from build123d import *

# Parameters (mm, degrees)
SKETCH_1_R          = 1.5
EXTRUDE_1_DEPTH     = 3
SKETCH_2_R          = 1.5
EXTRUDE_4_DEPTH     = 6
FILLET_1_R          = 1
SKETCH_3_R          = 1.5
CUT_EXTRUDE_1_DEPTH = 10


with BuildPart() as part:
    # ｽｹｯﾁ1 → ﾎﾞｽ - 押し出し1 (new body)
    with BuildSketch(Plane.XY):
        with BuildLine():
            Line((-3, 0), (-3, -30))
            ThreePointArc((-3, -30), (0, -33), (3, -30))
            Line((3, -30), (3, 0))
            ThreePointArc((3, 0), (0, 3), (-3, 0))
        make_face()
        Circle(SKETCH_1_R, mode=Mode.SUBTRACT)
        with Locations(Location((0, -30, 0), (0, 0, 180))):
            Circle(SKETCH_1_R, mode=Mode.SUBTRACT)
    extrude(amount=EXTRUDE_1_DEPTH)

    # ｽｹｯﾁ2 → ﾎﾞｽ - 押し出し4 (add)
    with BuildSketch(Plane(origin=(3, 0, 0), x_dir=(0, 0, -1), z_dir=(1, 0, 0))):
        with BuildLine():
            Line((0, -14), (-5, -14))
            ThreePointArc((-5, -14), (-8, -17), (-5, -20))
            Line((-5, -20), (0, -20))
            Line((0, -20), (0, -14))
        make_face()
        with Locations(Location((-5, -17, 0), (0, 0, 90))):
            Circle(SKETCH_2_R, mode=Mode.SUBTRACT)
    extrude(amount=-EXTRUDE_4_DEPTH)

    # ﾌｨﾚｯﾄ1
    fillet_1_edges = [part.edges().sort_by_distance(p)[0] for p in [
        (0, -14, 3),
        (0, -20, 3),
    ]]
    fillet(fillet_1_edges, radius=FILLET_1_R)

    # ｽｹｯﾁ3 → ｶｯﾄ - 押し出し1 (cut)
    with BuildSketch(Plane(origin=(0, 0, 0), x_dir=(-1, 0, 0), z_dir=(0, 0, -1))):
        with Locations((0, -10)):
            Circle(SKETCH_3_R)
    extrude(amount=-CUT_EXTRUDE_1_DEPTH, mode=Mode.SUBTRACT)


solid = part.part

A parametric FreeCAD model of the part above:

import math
import FreeCAD as App
import Part
import Sketcher
from FreeCAD import Vector
Q = App.Units.Quantity


def edges_at(feature, points):
    """Names of the edges that pass closest to the given points."""
    edges = feature.Shape.Edges
    near = lambda p: min(range(len(edges)), key=lambda i: edges[i].distToShape(Part.Vertex(*p))[0])
    return sorted({f"Edge{near(p) + 1}" for p in points})

doc = App.newDocument("Part")
body = doc.addObject("PartDesign::Body", "Body")

sketch1 = body.newObject("Sketcher::SketchObject", "Sketch")
sketch1.AttachmentSupport = (doc.getObject("XY_Plane"), [""])
sketch1.MapMode = "FlatFace"
sketch1.addGeometry([
    Part.LineSegment(Vector(-3, 0, 0), Vector(-3, -30, 0)),
    Part.ArcOfCircle(Part.Circle(Vector(0, -30, 0), Vector(0, 0, 1), 3), math.radians(180), math.radians(360)),
    Part.LineSegment(Vector(3, -30, 0), Vector(3, 0, 0)),
    Part.ArcOfCircle(Part.Circle(Vector(0, 0, 0), Vector(0, 0, 1), 3), math.radians(0), math.radians(180)),
    Part.Circle(Vector(0, -30, 0), Vector(0, 0, 1), 1.5),
    Part.Circle(Vector(0, 0, 0), Vector(0, 0, 1), 1.5),
], False)
sketch1.addConstraint([
    Sketcher.Constraint("Tangent", 0, 2, 1, 1),
    Sketcher.Constraint("Tangent", 1, 2, 2, 1),
    Sketcher.Constraint("Tangent", 2, 2, 3, 1),
    Sketcher.Constraint("Tangent", 3, 2, 0, 1),
    Sketcher.Constraint("Vertical", 0),
    Sketcher.Constraint("Vertical", 2),
    Sketcher.Constraint("Coincident", 3, 3, -1, 1),
    Sketcher.Constraint("Coincident", 5, 3, -1, 1),
    Sketcher.Constraint("Coincident", 4, 3, 1, 3),
    Sketcher.Constraint("Equal", 4, 5),
    Sketcher.Constraint("Diameter", 4, Q("3 mm")),
    Sketcher.Constraint("Radius", 1, Q("3 mm")),
    Sketcher.Constraint("DistanceY", 0, 2, 0, 1, Q("30 mm")),
])
pad1 = body.newObject("PartDesign::Pad", "Pad")
pad1.Profile = sketch1
pad1.Length = 3

sketch2 = body.newObject("Sketcher::SketchObject", "Sketch001")
sketch2.AttachmentSupport = (doc.getObject("YZ_Plane"), [""])
sketch2.MapMode = "FlatFace"
sketch2.AttachmentOffset = App.Placement(Vector(0, 0, 3), App.Rotation())
sketch2.addGeometry([
    Part.LineSegment(Vector(-14, 0, 0), Vector(-14, 5, 0)),
    Part.ArcOfCircle(Part.Circle(Vector(-17, 5, 0), Vector(0, 0, 1), 3), math.radians(0), math.radians(180)),
    Part.LineSegment(Vector(-20, 5, 0), Vector(-20, 0, 0)),
    Part.LineSegment(Vector(-20, 0, 0), Vector(-14, 0, 0)),
    Part.Circle(Vector(-17, 5, 0), Vector(0, 0, 1), 1.5),
], False)
sketch2.addConstraint([
    Sketcher.Constraint("Tangent", 0, 2, 1, 1),
    Sketcher.Constraint("Tangent", 1, 2, 2, 1),
    Sketcher.Constraint("Coincident", 2, 2, 3, 1),
    Sketcher.Constraint("Coincident", 3, 2, 0, 1),
    Sketcher.Constraint("Vertical", 0),
    Sketcher.Constraint("Vertical", 2),
    Sketcher.Constraint("Horizontal", 3),
    Sketcher.Constraint("Coincident", 4, 3, 1, 3),
    Sketcher.Constraint("PointOnObject", 2, 2, -1),
    Sketcher.Constraint("Diameter", 4, Q("3 mm")),
    Sketcher.Constraint("Radius", 1, Q("3 mm")),
    Sketcher.Constraint("DistanceY", 0, 1, 0, 2, Q("5 mm")),
    Sketcher.Constraint("DistanceX", 1, 3, -1, 1, Q("17 mm")),
])
pad2 = body.newObject("PartDesign::Pad", "Pad001")
pad2.Profile = sketch2
pad2.Length = 6
pad2.Reversed = True
doc.recompute()

fillet = body.newObject("PartDesign::Fillet", "Fillet")
fillet.Base = (pad2, edges_at(pad2, [(0, -14, 3), (0, -20, 3)]))
fillet.Radius = 1

sketch3 = body.newObject("Sketcher::SketchObject", "Sketch002")
sketch3.AttachmentSupport = (doc.getObject("XY_Plane"), [""])
sketch3.MapMode = "FlatFace"
sketch3.addGeometry(Part.Circle(Vector(0, -10, 0), Vector(0, 0, 1), 1.5), False)
sketch3.addConstraint([
    Sketcher.Constraint("PointOnObject", 0, 3, -2),
    Sketcher.Constraint("Diameter", 0, Q("3 mm")),
    Sketcher.Constraint("DistanceY", 0, 3, -1, 1, Q("10 mm")),
])
pocket1 = body.newObject("PartDesign::Pocket", "Pocket")
pocket1.Profile = sketch3
pocket1.Length = 10
pocket1.Reversed = True

doc.recompute()
